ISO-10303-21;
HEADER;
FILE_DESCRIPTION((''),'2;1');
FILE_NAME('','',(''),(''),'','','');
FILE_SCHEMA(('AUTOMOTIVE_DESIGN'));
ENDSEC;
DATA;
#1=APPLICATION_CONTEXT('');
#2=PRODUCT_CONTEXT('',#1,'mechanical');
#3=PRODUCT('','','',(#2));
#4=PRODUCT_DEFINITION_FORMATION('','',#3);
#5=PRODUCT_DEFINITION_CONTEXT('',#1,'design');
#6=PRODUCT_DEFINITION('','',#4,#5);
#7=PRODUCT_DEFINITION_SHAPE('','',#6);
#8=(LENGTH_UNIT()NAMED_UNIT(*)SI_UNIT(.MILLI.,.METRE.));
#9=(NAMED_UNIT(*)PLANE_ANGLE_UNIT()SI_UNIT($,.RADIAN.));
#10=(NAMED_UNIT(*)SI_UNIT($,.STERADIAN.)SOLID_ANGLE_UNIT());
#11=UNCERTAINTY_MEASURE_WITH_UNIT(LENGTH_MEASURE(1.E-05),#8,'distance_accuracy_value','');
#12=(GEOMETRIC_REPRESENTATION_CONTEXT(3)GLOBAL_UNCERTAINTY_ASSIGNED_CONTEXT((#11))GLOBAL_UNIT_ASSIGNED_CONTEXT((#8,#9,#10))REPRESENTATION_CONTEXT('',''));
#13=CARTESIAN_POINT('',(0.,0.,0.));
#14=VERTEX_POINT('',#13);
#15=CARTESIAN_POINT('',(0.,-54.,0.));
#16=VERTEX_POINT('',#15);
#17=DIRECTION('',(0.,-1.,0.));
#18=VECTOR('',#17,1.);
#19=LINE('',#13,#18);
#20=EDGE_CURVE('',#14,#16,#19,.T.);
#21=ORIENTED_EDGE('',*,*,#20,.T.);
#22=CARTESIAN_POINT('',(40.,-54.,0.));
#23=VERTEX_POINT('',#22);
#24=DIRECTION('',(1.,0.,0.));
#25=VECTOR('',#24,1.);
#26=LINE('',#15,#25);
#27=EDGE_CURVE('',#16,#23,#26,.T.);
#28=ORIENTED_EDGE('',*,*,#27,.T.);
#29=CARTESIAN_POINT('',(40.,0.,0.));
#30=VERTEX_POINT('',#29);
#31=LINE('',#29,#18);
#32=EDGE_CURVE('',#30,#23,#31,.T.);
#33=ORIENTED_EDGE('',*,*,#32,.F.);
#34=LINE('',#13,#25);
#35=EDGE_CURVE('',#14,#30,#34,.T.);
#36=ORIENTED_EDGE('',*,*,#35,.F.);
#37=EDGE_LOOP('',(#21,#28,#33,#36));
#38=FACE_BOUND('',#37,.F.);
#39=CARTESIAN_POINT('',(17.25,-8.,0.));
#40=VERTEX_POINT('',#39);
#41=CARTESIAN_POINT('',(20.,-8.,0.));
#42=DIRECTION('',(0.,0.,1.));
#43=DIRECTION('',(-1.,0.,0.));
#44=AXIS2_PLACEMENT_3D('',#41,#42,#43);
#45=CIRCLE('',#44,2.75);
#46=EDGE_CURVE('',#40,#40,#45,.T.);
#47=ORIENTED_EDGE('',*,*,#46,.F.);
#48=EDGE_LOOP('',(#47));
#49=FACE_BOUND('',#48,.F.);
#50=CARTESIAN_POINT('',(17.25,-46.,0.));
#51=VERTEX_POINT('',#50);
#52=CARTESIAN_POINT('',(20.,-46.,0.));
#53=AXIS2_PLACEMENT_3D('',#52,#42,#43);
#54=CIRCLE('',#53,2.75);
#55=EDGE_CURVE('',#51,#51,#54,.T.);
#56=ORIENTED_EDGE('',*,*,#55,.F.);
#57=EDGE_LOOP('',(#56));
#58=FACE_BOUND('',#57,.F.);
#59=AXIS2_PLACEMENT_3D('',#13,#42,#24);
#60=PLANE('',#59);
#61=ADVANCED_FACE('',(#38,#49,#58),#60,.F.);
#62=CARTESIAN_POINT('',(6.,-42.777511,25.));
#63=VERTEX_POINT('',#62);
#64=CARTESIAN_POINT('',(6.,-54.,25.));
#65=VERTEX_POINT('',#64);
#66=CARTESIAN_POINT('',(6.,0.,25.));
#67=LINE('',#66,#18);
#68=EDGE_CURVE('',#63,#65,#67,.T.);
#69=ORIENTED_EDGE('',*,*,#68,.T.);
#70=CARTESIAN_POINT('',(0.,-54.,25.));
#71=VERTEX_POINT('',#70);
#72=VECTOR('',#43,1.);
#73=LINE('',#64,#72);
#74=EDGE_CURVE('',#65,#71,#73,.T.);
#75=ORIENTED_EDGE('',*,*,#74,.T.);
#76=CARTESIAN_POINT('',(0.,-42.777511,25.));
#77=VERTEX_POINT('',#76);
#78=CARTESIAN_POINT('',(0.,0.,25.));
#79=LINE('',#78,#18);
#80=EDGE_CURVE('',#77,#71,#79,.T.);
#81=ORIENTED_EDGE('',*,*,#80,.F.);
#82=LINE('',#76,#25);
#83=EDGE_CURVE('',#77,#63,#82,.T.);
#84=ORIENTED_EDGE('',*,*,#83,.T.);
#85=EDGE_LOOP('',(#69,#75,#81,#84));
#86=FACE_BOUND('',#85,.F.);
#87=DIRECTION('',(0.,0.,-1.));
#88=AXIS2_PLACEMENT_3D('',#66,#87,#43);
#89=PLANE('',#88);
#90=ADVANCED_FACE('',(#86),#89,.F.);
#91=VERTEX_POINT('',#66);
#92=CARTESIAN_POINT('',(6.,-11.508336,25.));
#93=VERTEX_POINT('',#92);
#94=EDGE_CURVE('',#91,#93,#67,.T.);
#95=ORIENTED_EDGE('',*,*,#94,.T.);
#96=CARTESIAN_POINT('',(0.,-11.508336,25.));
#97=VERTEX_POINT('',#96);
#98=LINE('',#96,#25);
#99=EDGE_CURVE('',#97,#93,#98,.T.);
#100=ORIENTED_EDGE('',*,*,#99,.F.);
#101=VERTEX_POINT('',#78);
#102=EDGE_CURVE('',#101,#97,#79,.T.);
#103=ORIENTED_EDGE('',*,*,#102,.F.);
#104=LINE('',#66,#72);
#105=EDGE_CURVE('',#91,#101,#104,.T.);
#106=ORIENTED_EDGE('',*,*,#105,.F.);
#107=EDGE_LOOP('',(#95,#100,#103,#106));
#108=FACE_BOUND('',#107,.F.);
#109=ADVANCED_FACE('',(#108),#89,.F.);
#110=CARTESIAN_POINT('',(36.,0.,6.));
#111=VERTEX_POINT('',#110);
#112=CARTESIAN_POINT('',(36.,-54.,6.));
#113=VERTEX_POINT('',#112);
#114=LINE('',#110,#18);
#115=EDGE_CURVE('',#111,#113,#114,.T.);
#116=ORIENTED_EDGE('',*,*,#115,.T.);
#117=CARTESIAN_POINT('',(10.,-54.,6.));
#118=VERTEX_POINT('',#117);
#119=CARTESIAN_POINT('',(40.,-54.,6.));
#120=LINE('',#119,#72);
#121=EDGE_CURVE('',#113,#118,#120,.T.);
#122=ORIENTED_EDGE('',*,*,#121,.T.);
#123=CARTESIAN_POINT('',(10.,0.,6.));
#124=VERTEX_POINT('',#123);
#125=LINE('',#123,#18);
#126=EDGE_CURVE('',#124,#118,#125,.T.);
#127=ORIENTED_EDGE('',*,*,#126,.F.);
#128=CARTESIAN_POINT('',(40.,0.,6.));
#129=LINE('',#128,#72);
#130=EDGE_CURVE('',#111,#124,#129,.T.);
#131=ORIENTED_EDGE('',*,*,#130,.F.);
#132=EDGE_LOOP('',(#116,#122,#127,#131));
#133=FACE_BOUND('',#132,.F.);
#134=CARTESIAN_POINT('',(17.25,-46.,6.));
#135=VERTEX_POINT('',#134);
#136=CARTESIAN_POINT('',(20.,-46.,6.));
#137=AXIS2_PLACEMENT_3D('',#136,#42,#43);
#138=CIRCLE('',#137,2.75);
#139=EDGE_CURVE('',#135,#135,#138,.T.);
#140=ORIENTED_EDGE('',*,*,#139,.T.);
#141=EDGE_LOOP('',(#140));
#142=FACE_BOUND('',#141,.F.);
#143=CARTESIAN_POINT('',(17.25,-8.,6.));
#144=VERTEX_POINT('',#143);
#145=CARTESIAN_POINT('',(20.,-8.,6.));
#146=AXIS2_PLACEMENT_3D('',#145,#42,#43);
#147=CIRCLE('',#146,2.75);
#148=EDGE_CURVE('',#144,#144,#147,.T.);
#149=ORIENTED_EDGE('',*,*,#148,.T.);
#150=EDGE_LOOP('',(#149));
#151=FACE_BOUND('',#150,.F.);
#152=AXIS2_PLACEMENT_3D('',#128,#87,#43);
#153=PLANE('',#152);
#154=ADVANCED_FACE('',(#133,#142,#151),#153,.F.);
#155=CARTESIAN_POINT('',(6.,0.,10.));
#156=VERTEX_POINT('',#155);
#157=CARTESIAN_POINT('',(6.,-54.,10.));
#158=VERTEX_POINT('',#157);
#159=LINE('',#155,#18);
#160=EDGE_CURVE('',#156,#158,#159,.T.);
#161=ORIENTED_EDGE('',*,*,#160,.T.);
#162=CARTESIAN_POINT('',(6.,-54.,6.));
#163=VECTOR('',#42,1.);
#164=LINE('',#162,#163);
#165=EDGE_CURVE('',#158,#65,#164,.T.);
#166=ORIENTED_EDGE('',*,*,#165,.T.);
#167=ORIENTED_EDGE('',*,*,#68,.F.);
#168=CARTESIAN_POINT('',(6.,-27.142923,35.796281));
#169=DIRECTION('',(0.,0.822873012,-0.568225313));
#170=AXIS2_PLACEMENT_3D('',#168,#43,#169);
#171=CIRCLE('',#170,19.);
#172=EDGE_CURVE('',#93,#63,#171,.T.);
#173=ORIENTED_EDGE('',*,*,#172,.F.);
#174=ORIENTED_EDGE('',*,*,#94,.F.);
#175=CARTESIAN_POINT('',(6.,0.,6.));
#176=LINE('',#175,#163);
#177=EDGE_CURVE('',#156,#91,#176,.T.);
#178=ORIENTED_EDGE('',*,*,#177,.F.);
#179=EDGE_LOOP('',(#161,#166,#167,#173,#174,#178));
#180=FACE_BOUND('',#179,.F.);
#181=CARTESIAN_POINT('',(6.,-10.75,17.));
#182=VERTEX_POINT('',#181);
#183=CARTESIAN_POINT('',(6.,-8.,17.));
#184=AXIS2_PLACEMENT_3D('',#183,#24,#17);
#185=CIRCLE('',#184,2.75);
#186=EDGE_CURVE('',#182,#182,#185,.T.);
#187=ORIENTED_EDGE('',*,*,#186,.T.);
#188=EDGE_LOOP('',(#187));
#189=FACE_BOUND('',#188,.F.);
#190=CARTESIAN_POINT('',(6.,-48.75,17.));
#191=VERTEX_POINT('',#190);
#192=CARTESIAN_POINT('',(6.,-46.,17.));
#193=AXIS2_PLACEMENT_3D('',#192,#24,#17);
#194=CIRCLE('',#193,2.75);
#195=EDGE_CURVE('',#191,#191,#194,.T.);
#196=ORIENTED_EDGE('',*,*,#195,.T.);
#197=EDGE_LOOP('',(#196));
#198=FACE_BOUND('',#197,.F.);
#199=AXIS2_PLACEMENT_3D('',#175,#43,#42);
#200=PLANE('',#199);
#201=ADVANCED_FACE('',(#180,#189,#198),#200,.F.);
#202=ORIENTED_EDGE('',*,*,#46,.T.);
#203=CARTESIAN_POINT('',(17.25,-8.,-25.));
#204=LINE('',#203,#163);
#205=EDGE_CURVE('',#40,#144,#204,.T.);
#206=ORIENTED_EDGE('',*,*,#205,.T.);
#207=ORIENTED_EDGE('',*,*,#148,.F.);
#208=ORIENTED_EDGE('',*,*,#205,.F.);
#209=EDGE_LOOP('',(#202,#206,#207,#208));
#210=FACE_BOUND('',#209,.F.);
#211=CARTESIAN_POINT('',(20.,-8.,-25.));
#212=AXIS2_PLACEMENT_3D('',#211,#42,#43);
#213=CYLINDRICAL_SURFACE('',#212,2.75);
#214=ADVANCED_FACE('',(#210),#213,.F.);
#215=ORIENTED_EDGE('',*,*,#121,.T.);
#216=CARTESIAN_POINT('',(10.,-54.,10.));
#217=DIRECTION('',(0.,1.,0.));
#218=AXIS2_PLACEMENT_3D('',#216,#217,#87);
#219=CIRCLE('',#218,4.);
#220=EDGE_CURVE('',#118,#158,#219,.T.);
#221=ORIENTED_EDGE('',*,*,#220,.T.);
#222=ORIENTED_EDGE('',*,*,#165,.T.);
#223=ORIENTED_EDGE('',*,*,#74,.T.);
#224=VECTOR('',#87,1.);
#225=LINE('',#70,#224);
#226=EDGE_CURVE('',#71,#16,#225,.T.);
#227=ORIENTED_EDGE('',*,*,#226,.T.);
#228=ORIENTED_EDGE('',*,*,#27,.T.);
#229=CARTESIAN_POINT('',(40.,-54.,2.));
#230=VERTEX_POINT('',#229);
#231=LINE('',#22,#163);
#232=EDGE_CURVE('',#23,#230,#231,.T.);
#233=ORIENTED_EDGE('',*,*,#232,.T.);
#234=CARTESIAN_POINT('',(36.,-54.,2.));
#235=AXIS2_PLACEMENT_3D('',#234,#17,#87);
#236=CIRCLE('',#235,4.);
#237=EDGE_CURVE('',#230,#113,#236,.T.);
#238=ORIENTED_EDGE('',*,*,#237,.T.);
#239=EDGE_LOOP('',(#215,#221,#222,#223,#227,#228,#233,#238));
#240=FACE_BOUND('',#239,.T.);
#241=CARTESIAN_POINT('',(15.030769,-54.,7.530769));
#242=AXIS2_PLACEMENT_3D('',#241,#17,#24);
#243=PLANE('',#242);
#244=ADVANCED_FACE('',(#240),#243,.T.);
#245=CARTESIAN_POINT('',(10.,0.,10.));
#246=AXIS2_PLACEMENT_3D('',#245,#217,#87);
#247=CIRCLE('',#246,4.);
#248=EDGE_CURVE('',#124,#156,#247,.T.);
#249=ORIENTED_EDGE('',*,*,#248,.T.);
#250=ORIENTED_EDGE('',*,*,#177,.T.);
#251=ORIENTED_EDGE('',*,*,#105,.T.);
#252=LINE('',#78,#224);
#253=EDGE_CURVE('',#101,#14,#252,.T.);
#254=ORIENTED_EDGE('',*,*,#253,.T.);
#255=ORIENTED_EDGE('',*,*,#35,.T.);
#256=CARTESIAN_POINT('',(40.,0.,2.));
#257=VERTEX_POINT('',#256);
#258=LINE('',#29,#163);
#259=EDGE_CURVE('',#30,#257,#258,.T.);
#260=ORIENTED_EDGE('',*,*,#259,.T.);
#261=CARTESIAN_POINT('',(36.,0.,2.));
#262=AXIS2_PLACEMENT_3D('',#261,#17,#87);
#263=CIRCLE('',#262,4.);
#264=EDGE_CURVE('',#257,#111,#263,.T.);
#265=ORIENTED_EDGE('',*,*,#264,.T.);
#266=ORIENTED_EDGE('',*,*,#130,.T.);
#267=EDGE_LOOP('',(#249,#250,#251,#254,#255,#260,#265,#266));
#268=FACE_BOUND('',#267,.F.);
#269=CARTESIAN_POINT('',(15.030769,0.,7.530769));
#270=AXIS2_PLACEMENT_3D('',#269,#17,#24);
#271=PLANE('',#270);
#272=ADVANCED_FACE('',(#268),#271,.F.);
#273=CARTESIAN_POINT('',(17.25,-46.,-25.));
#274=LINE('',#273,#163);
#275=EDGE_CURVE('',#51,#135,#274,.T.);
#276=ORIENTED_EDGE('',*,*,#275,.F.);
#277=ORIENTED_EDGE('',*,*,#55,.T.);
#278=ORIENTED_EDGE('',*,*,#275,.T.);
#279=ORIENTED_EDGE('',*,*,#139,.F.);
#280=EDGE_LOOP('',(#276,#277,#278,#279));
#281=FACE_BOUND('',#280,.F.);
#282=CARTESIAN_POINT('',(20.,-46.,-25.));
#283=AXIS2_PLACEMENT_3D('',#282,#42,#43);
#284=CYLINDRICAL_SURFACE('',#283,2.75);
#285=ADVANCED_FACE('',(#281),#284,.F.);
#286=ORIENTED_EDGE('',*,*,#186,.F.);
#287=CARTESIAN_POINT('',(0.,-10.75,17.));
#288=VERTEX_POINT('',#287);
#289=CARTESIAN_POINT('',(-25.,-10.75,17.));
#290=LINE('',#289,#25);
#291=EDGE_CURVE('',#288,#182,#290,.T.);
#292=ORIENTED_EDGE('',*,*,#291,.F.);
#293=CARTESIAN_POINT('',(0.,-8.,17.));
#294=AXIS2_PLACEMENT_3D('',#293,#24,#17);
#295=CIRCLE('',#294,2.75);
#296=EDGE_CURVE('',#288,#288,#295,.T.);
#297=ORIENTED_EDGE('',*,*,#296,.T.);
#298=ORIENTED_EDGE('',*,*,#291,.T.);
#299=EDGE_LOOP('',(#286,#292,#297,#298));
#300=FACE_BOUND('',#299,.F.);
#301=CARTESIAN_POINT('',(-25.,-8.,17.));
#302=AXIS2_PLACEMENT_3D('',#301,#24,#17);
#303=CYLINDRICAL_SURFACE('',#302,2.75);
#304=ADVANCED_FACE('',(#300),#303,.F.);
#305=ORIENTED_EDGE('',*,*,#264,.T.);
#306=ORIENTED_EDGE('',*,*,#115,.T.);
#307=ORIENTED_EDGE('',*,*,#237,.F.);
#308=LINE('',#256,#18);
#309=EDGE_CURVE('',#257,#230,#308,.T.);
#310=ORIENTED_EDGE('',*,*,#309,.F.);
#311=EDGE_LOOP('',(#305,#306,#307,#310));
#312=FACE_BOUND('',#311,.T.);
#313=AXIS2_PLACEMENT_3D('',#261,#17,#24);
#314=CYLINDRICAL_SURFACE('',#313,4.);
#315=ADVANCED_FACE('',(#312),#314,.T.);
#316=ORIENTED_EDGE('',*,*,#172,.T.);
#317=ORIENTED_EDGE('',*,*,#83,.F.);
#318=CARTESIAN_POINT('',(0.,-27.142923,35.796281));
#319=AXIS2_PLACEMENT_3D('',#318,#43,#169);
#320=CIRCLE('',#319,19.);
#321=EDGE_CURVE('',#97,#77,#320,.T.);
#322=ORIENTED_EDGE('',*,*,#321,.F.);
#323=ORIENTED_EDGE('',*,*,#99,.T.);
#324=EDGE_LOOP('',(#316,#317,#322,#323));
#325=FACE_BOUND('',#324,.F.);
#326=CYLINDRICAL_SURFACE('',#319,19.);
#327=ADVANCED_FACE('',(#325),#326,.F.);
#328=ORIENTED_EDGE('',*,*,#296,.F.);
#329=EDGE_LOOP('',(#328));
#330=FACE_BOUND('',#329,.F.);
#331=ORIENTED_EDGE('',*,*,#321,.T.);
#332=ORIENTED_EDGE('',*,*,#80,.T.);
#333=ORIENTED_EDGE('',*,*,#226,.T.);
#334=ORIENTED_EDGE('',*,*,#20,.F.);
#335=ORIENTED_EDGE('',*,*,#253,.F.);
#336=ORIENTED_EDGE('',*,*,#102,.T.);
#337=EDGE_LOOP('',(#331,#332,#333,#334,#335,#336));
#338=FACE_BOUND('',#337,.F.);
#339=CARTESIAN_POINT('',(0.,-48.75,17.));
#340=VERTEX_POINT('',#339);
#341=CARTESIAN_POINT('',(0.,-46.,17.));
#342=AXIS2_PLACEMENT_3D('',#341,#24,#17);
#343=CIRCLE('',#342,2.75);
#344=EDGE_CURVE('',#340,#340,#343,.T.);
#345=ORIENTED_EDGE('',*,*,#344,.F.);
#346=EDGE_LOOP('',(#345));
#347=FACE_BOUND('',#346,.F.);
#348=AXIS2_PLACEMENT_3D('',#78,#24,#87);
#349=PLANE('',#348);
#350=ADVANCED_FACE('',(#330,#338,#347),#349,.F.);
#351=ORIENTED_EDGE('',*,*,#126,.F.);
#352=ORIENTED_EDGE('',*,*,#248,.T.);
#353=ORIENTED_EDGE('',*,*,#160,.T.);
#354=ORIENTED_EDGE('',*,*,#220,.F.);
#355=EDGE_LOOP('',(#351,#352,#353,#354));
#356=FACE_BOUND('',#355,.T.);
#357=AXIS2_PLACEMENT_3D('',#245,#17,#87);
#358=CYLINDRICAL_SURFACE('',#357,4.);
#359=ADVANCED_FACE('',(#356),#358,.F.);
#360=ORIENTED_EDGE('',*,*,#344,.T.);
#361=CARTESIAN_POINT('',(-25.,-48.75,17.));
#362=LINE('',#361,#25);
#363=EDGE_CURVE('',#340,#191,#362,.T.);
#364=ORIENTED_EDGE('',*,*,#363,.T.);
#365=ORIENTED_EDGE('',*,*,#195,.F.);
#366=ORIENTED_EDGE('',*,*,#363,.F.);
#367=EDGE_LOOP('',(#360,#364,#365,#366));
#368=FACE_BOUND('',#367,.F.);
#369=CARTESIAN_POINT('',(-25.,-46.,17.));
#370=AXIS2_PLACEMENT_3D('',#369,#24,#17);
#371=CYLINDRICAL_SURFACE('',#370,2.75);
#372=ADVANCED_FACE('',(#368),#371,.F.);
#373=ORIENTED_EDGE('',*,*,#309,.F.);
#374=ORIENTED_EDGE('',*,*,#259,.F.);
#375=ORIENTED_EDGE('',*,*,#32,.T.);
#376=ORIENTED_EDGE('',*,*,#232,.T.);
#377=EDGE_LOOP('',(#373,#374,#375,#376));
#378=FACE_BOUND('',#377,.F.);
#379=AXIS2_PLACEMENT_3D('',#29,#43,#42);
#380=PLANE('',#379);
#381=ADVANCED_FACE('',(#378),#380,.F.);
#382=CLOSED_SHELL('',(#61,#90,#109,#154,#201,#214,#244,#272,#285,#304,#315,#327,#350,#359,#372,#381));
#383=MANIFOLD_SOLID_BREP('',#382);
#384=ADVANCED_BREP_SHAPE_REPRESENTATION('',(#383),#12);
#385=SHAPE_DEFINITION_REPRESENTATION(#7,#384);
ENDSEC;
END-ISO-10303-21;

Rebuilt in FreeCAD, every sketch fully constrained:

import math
import FreeCAD as App
import Part
import Sketcher
from FreeCAD import Vector


def edges_at(feature, points):
    """Names of the edges that pass closest to the given points."""
    edges = feature.Shape.Edges
    near = lambda p: min(range(len(edges)), key=lambda i: edges[i].distToShape(Part.Vertex(*p))[0])
    return sorted({f"Edge{near(p) + 1}" for p in points})

doc = App.newDocument("Part")
body = doc.addObject("PartDesign::Body", "Body")

# Sketch on XZ plane
sketch1 = doc.addObject("Sketcher::SketchObject", "Sketch")
body.addObject(sketch1)
sketch1.AttachmentSupport = (doc.XZ_Plane, [""])
sketch1.MapMode = "FlatFace"
sketch1.addGeometry([
    Part.LineSegment(Vector(0, 25, 0), Vector(0, 0, 0)),  # 0
    Part.LineSegment(Vector(0, 0, 0), Vector(40, 0, 0)),  # 1
    Part.LineSegment(Vector(40, 0, 0), Vector(40, 6, 0)),  # 2
    Part.LineSegment(Vector(40, 6, 0), Vector(6, 6, 0)),  # 3
    Part.LineSegment(Vector(6, 6, 0), Vector(6, 25, 0)),  # 4
    Part.LineSegment(Vector(6, 25, 0), Vector(0, 25, 0)),  # 5
], False)
sketch1.addConstraint([
    Sketcher.Constraint("Coincident", 0, 2, 1, 1),
    Sketcher.Constraint("Coincident", 1, 2, 2, 1),
    Sketcher.Constraint("Coincident", 2, 2, 3, 1),
    Sketcher.Constraint("Coincident", 3, 2, 4, 1),
    Sketcher.Constraint("Coincident", 4, 2, 5, 1),
    Sketcher.Constraint("Coincident", 5, 2, 0, 1),
    Sketcher.Constraint("Vertical", 0),
    Sketcher.Constraint("Horizontal", 1),
    Sketcher.Constraint("Vertical", 2),
    Sketcher.Constraint("Horizontal", 3),
    Sketcher.Constraint("Vertical", 4),
    Sketcher.Constraint("Horizontal", 5),
    Sketcher.Constraint("Coincident", 0, 2, -1, 1),
    Sketcher.Constraint("Equal", 5, 2),
    Sketcher.Constraint("DistanceX", 1, 1, 1, 2, 40.0),
    Sketcher.Constraint("DistanceX", 3, 2, 3, 1, 34.0),
    Sketcher.Constraint("DistanceY", 0, 2, 0, 1, 25.0),
])
pad1 = doc.addObject("PartDesign::Pad", "Pad")
body.addObject(pad1)
pad1.Profile = sketch1
pad1.Length = 54
doc.recompute()

fillet = doc.addObject("PartDesign::Fillet", "Fillet")
body.addObject(fillet)
fillet.Base = (pad1, edges_at(pad1, [(40, -27, 6)]))
fillet.Radius = 4
doc.recompute()

fillet2 = doc.addObject("PartDesign::Fillet", "Fillet001")
body.addObject(fillet2)
fillet2.Base = (fillet, edges_at(fillet, [(6, -27, 6)]))
fillet2.Radius = 4

# Sketch on YZ plane
sketch2 = doc.addObject("Sketcher::SketchObject", "Sketch001")
body.addObject(sketch2)
sketch2.AttachmentSupport = (doc.YZ_Plane, [""])
sketch2.MapMode = "FlatFace"
sketch2.addGeometry([
    Part.ArcOfCircle(Part.Circle(Vector(-27, 36, 0), Vector(0, 0, 1), 19), math.radians(-145), math.radians(-35)),
    Part.ArcOfCircle(Part.Circle(Vector(-27, 36, 0), Vector(0, 0, 1), 19), math.radians(180), math.radians(215)),
    Part.ArcOfCircle(Part.Circle(Vector(-27, 36, 0), Vector(0, 0, 1), 19), math.radians(-35), math.radians(180)),
], False)
sketch2.addConstraint([
    Sketcher.Constraint("Tangent", 0, 1, 1, 2),
    Sketcher.Constraint("Tangent", 1, 1, 2, 2),
    Sketcher.Constraint("Tangent", 2, 1, 0, 2),
    Sketcher.Constraint("Horizontal", 2, 3, 1, 1),
    Sketcher.Constraint("Horizontal", 0, 1, 2, 1),
    Sketcher.Constraint("Radius", 0, 19.0),
    Sketcher.Constraint("DistanceY", -1, 1, 0, 1, 25.0),
    Sketcher.Constraint("DistanceY", -1, 1, 0, 3, 35.796281),
    Sketcher.Constraint("DistanceX", 0, 1, -1, 1, 42.777511),
])
pocket1 = doc.addObject("PartDesign::Pocket", "Pocket")
body.addObject(pocket1)
pocket1.Profile = sketch2
pocket1.Length = 30
pocket1.Reversed = True

# Sketch on YZ plane
sketch3 = doc.addObject("Sketcher::SketchObject", "Sketch002")
body.addObject(sketch3)
sketch3.AttachmentSupport = (doc.YZ_Plane, [""])
sketch3.MapMode = "FlatFace"
sketch3.addGeometry([
    Part.Circle(Vector(-8, 17, 0), Vector(0, 0, 1), 2.8),
    Part.Circle(Vector(-46, 17, 0), Vector(0, 0, 1), 2.8),
], False)
sketch3.addConstraint([
    Sketcher.Constraint("Equal", 0, 1),
    Sketcher.Constraint("Horizontal", 0, 3, 1, 3),
    Sketcher.Constraint("Diameter", 0, 5.5),
    Sketcher.Constraint("DistanceX", 0, 3, -1, 1, 8.0),
    Sketcher.Constraint("DistanceY", -1, 1, 0, 3, 17.0),
    Sketcher.Constraint("DistanceX", 1, 3, -1, 1, 46.0),
])
doc.recompute()
hole = doc.addObject("PartDesign::Hole", "Hole")
body.addObject(hole)
hole.Profile = sketch3
hole.ThreadType = "None"
hole.Diameter = 5.5
hole.DepthType = "Dimension"
hole.Depth = 25
hole.DrillPoint = "Angled"
hole.DrillPointAngle = 118
hole.Reversed = True

# Sketch on XY plane
sketch4 = doc.addObject("Sketcher::SketchObject", "Sketch003")
body.addObject(sketch4)
sketch4.AttachmentSupport = (doc.XY_Plane, [""])
sketch4.MapMode = "FlatFace"
sketch4.addGeometry([
    Part.Circle(Vector(20, -46, 0), Vector(0, 0, 1), 2.8),
    Part.Circle(Vector(20, -8, 0), Vector(0, 0, 1), 2.8),
], False)
sketch4.addConstraint([
    Sketcher.Constraint("Equal", 0, 1),
    Sketcher.Constraint("Vertical", 0, 3, 1, 3),
    Sketcher.Constraint("Diameter", 0, 5.5),
    Sketcher.Constraint("DistanceX", -1, 1, 0, 3, 20.0),
    Sketcher.Constraint("DistanceY", 0, 3, -1, 1, 46.0),
    Sketcher.Constraint("DistanceY", 1, 3, -1, 1, 8.0),
])
doc.recompute()
hole2 = doc.addObject("PartDesign::Hole", "Hole001")
body.addObject(hole2)
hole2.Profile = sketch4
hole2.ThreadType = "None"
hole2.Diameter = 5.5
hole2.DepthType = "Dimension"
hole2.Depth = 25
hole2.DrillPoint = "Angled"
hole2.DrillPointAngle = 118
hole2.Reversed = True

doc.recompute()
